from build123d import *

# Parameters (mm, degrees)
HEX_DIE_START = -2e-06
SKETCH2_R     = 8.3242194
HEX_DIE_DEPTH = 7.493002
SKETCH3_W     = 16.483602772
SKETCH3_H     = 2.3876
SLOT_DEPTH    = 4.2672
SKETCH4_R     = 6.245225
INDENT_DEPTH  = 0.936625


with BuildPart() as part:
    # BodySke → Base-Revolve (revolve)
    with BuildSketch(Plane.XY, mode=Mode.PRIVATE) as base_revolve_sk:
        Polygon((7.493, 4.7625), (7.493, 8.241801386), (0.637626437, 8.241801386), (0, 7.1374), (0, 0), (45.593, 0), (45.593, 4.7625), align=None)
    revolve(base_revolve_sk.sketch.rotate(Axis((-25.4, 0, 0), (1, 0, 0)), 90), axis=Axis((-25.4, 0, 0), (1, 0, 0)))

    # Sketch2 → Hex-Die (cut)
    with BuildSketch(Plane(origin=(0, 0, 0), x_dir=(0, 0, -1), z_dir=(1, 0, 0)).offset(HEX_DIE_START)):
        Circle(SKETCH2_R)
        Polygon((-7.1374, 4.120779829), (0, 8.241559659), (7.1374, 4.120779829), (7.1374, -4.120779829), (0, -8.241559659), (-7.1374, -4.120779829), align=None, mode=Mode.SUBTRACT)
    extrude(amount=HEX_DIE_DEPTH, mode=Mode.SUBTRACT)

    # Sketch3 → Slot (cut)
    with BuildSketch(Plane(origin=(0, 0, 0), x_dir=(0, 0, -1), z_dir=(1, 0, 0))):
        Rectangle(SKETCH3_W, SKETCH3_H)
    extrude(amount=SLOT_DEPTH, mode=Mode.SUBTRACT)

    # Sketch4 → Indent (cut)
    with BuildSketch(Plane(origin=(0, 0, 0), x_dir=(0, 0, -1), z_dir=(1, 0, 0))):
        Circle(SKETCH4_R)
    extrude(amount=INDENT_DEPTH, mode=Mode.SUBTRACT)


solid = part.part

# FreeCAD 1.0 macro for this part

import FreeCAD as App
import Part
import Sketcher
Q = App.Units.Quantity


def add_polygon(sketch, points):
    """Adds a closed chain of lines whose ends are joined by coincident constraints."""
    first, n = sketch.GeometryCount, len(points)
    for a, b in zip(points, points[1:] + points[:1]):
        sketch.addGeometry(Part.LineSegment(App.Vector(*a, 0), App.Vector(*b, 0)), False)
    for i in range(n):
        sketch.addConstraint(Sketcher.Constraint("Coincident", first + i, 2, first + (i + 1) % n, 1))

doc = App.newDocument("Part")
body = doc.addObject("PartDesign::Body", "Body")

sketch1 = doc.addObject("Sketcher::SketchObject", "Sketch")
body.addObject(sketch1)
sketch1.AttachmentSupport = (doc.XY_Plane, [""])
sketch1.MapMode = "FlatFace"
add_polygon(sketch1, [(7.5, 4.8), (7.5, 8.2), (0.6, 8.2), (0, 7.1), (0, 0), (45.6, 0), (45.6, 4.8)])
sketch1.addConstraint([
    Sketcher.Constraint("Vertical", 0),
    Sketcher.Constraint("Horizontal", 1),
    Sketcher.Constraint("Vertical", 3),
    Sketcher.Constraint("Horizontal", 4),
    Sketcher.Constraint("Vertical", 5),
    Sketcher.Constraint("Horizontal", 6),
    Sketcher.Constraint("Coincident", 3, 2, -1, 1),
    Sketcher.Constraint("DistanceX", 6, 2, 6, 1, Q("1.5 in")),
    Sketcher.Constraint("Angle", 2, Q("-120 deg")),
    Sketcher.Constraint("DistanceX", 4, 1, 4, 2, Q("1.795 in")),
    Sketcher.Constraint("DistanceY", 3, 2, 3, 1, Q("0.281 in")),
    Sketcher.Constraint("DistanceY", 5, 1, 5, 2, Q("0.1875 in")),
    Sketcher.Constraint("DistanceY", 0, 1, 0, 2, Q("3.479301 mm")),
])
revolution = doc.addObject("PartDesign::Revolution", "Revolution")
body.addObject(revolution)
revolution.Profile = sketch1
revolution.ReferenceAxis = (sketch1, ["H_Axis"])
revolution.Angle = 360

sketch2 = doc.addObject("Sketcher::SketchObject", "Sketch001")
body.addObject(sketch2)
sketch2.AttachmentSupport = (doc.YZ_Plane, [""])
sketch2.MapMode = "FlatFace"
sketch2.AttachmentOffset = App.Placement(App.Vector(0, 0, -0.0000001 * 25.4), App.Rotation())
sketch2.addGeometry(Part.Circle(App.Vector(0, 0, 0), App.Vector(0, 0, 1), 8), False)
add_polygon(sketch2, [(-4, 7), (4, 7), (8, 0), (4, -7), (-4, -7), (-8, 0)])
sketch2.addConstraint([
    Sketcher.Constraint("Horizontal", 1),
    Sketcher.Constraint("Horizontal", 4),
    Sketcher.Constraint("Coincident", 0, 3, -1, 1),
    Sketcher.Constraint("Symmetric", 1, 2, 4, 2, -1, 1),
    Sketcher.Constraint("Symmetric", 2, 2, 5, 2, -1, 1),
    Sketcher.Constraint("PointOnObject", 2, 2, -1),
    Sketcher.Constraint("Parallel", 3, 6),
    Sketcher.Constraint("Vertical", 1, 2, 3, 2),
    Sketcher.Constraint("Angle", 2, Q("-60 deg")),
    Sketcher.Constraint("Diameter", 0, Q("16.648439 mm")),
    Sketcher.Constraint("DistanceY", -1, 1, 1, 2, Q("0.281 in")),
    Sketcher.Constraint("DistanceX", 1, 1, 1, 2, Q("8.24156 mm")),
])
pocket1 = doc.addObject("PartDesign::Pocket", "Pocket")
body.addObject(pocket1)
pocket1.Profile = sketch2
pocket1.Length = Q("0.2950001 in")
pocket1.Reversed = True

sketch3 = doc.addObject("Sketcher::SketchObject", "Sketch002")
body.addObject(sketch3)
sketch3.AttachmentSupport = (doc.YZ_Plane, [""])
sketch3.MapMode = "FlatFace"
add_polygon(sketch3, [(1.2, 8.2), (-1.2, 8.2), (-1.2, -8.2), (1.2, -8.2)])
sketch3.addConstraint([
    Sketcher.Constraint("Horizontal", 0),
    Sketcher.Constraint("Vertical", 1),
    Sketcher.Constraint("Horizontal", 2),
    Sketcher.Constraint("Vertical", 3),
    Sketcher.Constraint("Symmetric", 0, 2, 2, 2, -1, 1),
    Sketcher.Constraint("DistanceX", 0, 2, 0, 1, Q("0.094 in")),
    Sketcher.Constraint("DistanceY", -1, 1, 0, 2, Q("8.241801 mm")),
])
pocket2 = doc.addObject("PartDesign::Pocket", "Pocket001")
body.addObject(pocket2)
pocket2.Profile = sketch3
pocket2.Length = Q("0.168 in")
pocket2.Reversed = True

sketch4 = doc.addObject("Sketcher::SketchObject", "Sketch003")
body.addObject(sketch4)
sketch4.AttachmentSupport = (doc.YZ_Plane, [""])
sketch4.MapMode = "FlatFace"
sketch4.addGeometry(Part.Circle(App.Vector(0, 0, 0), App.Vector(0, 0, 1), 6), False)
sketch4.addConstraint([
    Sketcher.Constraint("Coincident", 0, 3, -1, 1),
    Sketcher.Constraint("Diameter", 0, Q("12.49045 mm")),
])
pocket3 = doc.addObject("PartDesign::Pocket", "Pocket002")
body.addObject(pocket3)
pocket3.Profile = sketch4
pocket3.Length = 0.936625
pocket3.Reversed = True

doc.recompute()
